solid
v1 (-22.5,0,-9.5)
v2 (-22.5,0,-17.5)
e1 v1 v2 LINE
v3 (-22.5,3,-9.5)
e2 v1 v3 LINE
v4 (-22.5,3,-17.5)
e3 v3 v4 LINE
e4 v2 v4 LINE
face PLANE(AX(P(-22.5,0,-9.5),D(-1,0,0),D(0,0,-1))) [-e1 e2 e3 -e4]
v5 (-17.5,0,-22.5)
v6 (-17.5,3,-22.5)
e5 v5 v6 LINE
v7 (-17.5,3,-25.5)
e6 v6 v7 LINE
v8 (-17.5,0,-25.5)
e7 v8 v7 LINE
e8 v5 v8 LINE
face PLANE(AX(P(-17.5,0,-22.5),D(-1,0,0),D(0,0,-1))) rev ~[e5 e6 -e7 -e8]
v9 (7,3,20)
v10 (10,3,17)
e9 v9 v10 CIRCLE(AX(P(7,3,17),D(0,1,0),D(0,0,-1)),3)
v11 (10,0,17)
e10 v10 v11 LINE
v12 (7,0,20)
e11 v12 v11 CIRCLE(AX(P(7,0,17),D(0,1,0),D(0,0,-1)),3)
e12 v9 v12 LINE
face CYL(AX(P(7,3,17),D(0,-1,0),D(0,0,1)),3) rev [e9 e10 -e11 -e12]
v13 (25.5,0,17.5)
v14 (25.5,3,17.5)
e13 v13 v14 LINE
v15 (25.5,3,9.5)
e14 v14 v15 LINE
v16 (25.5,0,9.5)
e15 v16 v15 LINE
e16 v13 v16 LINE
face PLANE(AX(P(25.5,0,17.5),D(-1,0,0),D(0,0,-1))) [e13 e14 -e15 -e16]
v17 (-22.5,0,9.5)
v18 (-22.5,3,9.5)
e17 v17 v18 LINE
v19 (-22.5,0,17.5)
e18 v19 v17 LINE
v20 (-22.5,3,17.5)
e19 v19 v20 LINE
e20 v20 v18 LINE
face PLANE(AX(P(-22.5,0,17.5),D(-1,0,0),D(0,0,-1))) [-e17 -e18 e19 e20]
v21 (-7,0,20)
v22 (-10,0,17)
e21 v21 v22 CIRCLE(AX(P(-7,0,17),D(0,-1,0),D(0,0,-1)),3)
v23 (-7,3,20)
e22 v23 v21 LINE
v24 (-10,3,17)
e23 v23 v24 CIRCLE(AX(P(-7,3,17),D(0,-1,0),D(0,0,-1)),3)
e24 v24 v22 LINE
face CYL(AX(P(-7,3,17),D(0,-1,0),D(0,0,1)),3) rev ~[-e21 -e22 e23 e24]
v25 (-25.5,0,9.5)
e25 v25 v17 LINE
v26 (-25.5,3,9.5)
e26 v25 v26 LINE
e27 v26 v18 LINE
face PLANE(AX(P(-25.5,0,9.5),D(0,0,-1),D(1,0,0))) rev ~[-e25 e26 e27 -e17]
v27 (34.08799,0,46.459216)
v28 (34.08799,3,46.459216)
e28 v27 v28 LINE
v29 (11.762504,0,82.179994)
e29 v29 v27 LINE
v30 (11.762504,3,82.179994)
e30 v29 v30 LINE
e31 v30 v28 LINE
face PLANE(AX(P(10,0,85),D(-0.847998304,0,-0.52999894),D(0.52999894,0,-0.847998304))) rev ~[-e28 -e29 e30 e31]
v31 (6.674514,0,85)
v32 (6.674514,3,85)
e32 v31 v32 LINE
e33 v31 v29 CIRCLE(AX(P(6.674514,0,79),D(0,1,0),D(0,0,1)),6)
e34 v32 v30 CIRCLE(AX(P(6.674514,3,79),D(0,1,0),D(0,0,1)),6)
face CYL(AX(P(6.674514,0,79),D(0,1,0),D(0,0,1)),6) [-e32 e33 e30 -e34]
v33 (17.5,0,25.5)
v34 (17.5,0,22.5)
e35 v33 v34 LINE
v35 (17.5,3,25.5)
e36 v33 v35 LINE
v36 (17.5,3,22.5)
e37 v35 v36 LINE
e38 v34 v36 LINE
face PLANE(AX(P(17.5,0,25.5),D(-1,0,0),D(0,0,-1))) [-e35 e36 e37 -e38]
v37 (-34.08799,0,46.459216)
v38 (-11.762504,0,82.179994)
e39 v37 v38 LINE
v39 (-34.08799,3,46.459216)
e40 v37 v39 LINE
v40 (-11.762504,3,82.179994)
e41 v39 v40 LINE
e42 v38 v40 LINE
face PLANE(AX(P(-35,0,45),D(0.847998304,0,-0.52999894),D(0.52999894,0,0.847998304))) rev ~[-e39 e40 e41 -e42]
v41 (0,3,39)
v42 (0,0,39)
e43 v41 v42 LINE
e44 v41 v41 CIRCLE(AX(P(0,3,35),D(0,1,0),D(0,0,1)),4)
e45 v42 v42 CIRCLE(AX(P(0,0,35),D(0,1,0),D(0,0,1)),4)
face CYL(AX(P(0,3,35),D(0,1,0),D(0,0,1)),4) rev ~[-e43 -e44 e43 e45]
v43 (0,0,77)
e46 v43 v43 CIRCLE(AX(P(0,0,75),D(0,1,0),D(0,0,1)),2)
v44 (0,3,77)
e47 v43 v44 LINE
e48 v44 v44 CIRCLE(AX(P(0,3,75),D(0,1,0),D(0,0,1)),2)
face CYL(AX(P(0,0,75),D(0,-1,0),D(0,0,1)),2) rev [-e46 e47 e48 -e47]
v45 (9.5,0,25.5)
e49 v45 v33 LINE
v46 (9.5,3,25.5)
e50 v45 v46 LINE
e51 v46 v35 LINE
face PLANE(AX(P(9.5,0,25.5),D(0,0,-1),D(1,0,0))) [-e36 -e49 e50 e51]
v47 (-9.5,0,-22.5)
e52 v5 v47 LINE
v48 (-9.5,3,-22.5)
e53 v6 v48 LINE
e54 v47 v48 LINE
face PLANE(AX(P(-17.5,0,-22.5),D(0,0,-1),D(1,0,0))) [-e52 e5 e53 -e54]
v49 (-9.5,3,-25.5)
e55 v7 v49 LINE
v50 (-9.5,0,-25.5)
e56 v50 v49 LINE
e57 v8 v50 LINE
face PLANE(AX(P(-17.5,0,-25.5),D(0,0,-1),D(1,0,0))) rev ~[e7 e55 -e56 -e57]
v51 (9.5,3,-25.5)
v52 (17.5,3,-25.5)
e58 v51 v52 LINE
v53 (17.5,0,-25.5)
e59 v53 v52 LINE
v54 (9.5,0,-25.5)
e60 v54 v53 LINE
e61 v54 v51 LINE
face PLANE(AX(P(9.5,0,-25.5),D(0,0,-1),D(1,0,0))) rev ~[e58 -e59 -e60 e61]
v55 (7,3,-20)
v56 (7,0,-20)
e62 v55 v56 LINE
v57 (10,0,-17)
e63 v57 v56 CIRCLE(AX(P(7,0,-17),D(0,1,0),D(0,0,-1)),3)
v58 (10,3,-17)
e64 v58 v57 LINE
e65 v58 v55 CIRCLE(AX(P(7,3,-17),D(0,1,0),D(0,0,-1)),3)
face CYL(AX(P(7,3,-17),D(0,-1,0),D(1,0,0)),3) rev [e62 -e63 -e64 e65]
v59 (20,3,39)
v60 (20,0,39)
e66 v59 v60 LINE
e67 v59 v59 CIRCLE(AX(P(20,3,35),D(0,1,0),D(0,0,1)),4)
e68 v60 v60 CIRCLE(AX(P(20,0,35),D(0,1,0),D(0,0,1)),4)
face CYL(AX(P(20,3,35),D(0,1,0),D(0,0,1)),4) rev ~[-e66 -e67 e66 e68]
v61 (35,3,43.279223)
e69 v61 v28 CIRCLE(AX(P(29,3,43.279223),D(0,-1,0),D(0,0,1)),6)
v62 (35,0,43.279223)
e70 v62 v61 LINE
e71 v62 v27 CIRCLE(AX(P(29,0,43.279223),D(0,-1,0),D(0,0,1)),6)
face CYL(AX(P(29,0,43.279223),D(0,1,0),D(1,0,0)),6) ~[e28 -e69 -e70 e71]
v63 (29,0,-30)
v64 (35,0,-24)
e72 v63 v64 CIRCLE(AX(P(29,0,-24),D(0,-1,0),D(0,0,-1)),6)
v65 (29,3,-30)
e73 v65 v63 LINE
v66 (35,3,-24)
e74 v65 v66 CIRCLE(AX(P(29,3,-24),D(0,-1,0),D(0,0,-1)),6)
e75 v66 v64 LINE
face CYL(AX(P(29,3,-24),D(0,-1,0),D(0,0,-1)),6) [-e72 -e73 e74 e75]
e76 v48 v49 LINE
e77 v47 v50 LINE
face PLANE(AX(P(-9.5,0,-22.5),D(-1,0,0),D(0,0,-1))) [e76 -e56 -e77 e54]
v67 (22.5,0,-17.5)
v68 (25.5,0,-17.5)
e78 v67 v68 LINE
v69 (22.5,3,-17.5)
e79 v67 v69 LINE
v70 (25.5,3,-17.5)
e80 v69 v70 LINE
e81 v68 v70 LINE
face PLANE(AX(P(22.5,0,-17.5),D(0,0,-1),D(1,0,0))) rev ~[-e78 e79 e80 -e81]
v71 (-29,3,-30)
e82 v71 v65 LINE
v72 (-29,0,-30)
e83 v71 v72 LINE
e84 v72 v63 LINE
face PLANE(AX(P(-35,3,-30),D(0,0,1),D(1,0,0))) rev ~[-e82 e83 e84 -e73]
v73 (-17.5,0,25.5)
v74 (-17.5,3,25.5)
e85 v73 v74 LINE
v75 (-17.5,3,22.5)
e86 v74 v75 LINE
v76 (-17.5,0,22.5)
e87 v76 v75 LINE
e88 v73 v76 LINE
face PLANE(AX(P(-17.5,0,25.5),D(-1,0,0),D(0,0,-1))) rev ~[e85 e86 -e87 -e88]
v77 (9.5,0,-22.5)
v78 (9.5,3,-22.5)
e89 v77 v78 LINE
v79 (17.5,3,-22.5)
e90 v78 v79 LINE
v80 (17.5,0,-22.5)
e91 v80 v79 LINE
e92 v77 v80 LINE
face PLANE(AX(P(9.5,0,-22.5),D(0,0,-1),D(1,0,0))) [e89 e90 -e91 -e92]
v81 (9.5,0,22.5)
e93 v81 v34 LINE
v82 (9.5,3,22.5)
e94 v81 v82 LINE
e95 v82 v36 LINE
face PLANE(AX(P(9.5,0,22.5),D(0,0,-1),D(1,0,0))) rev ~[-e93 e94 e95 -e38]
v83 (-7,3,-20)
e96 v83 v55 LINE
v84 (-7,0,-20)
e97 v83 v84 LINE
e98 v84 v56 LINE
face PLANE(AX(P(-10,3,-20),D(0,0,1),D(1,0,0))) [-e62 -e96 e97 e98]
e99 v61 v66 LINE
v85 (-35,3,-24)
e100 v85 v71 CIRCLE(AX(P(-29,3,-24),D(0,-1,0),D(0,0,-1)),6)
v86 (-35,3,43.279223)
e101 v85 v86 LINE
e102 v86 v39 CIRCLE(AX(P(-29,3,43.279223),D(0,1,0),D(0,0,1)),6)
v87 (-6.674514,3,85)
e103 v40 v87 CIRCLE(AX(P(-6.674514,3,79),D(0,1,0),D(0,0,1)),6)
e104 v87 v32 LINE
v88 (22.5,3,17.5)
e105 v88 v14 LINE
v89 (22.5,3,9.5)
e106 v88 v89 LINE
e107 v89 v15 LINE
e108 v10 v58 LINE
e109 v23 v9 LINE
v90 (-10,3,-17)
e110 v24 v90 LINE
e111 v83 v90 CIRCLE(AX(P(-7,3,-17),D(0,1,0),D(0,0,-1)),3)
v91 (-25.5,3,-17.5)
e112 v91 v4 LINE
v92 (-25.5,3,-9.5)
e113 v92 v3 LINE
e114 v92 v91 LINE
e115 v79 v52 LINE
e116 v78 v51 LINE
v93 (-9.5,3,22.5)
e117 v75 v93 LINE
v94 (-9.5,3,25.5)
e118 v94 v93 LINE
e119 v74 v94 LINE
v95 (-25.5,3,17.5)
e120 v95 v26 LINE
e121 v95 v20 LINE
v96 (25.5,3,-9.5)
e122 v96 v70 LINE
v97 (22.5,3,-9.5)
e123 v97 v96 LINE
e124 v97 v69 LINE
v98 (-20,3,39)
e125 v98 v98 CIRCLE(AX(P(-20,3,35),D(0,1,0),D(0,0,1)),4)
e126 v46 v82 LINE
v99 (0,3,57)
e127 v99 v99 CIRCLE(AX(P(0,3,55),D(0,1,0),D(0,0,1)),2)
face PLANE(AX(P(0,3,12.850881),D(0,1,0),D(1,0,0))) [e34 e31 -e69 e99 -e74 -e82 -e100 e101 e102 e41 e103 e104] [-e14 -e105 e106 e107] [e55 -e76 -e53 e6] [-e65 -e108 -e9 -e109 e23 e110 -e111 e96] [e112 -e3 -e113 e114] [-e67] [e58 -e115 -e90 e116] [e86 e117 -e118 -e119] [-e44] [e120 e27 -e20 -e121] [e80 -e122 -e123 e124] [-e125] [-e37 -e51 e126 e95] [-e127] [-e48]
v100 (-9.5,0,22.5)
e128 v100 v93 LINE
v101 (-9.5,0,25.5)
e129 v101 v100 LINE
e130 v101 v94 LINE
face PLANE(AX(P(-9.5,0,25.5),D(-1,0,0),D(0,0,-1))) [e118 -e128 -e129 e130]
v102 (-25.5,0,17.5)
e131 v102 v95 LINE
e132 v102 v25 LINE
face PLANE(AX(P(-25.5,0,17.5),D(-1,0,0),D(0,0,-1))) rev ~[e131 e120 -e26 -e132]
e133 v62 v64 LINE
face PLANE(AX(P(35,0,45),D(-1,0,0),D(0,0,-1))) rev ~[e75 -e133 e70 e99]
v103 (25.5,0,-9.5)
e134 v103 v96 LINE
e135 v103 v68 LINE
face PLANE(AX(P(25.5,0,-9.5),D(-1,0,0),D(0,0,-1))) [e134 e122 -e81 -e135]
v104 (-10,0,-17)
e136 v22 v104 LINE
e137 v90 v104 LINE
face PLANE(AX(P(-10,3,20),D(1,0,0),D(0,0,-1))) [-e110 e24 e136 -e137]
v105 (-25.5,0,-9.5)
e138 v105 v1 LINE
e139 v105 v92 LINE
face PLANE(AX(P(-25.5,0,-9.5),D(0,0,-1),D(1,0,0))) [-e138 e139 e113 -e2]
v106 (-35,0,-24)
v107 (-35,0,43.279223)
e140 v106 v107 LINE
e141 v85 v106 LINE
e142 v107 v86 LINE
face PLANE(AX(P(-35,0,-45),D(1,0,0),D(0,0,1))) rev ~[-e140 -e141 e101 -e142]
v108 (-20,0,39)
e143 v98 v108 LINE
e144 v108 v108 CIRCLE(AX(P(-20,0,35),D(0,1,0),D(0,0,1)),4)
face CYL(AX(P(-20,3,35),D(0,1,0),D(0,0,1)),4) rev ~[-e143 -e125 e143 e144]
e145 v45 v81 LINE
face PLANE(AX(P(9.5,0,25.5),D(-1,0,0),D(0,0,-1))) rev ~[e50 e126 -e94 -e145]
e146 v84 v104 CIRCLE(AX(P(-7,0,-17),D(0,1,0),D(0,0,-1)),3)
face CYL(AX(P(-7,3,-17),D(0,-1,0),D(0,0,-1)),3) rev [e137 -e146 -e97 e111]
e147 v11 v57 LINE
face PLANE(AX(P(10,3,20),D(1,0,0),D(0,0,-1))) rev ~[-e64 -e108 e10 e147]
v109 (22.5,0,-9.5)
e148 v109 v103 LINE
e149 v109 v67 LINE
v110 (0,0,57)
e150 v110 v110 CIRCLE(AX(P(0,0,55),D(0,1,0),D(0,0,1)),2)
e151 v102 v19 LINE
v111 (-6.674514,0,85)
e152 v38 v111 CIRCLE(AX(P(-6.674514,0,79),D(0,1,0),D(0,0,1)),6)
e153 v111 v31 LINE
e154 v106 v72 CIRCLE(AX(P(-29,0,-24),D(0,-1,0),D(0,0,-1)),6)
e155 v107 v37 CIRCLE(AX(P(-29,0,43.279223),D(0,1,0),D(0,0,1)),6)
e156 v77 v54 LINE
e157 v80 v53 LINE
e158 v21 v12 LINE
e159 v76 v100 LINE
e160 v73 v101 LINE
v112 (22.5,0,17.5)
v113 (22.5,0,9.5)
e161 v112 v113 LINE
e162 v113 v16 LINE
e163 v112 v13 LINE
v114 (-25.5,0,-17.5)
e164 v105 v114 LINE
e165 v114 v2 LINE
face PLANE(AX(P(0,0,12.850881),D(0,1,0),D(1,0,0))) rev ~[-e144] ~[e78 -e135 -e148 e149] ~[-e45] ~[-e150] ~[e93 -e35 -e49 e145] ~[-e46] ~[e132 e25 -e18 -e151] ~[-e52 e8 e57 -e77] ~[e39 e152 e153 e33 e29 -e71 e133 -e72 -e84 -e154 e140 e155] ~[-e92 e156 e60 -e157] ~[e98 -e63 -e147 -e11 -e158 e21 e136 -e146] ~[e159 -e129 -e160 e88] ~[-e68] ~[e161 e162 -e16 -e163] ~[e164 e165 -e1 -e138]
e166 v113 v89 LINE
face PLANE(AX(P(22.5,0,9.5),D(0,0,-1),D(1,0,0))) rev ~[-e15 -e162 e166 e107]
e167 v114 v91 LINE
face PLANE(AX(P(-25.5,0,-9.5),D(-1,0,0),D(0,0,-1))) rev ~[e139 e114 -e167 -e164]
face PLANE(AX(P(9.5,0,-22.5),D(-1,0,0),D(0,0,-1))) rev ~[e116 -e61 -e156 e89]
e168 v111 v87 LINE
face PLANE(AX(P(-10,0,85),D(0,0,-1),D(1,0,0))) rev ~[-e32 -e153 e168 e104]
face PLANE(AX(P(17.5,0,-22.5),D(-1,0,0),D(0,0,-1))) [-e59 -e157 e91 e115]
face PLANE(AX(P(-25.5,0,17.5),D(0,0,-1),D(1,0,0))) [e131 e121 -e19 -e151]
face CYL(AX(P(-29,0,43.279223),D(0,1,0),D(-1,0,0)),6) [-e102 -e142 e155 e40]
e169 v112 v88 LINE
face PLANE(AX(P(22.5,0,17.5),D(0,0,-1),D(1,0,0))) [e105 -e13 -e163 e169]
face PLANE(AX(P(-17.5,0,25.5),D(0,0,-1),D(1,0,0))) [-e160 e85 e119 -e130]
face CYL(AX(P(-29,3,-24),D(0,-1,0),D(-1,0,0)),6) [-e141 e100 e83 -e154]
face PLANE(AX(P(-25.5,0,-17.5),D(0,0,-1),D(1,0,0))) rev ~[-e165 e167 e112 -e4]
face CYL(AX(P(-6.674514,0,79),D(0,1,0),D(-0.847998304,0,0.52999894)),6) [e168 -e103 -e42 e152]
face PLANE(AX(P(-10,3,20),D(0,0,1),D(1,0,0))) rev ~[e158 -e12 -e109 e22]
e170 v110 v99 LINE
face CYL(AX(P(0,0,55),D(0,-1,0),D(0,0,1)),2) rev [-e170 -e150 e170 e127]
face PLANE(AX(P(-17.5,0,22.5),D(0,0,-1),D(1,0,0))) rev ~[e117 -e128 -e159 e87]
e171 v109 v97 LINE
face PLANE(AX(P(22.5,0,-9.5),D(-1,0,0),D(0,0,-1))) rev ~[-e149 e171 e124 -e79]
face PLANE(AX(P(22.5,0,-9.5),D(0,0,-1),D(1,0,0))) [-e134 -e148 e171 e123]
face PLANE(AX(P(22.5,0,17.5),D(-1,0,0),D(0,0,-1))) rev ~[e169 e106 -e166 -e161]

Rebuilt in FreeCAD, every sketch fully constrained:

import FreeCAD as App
import Part
import Sketcher
Q = App.Units.Quantity


def edges_at(feature, points):
    """Names of the edges that pass closest to the given points."""
    edges = feature.Shape.Edges
    near = lambda p: min(range(len(edges)), key=lambda i: edges[i].distToShape(Part.Vertex(*p))[0])
    return sorted({f"Edge{near(p) + 1}" for p in points})


def add_polygon(sketch, points):
    """Adds a closed chain of lines whose ends are joined by coincident constraints."""
    first, n = sketch.GeometryCount, len(points)
    for a, b in zip(points, points[1:] + points[:1]):
        sketch.addGeometry(Part.LineSegment(App.Vector(*a, 0), App.Vector(*b, 0)), False)
    for i in range(n):
        sketch.addConstraint(Sketcher.Constraint("Coincident", first + i, 2, first + (i + 1) % n, 1))

doc = App.newDocument("Part")
body = doc.addObject("PartDesign::Body", "Body")

sketch1 = doc.addObject("Sketcher::SketchObject", "Sketch")
body.addObject(sketch1)
sketch1.AttachmentSupport = (doc.XZ_Plane, [""])
sketch1.MapMode = "FlatFace"
add_polygon(sketch1, [(-35, 45), (-10, 85), (10, 85), (35, 45), (35, -45), (-35, -45)])
sketch1.addGeometry(Part.Circle(App.Vector(0, 75, 0), App.Vector(0, 0, 1), 2), False)
sketch1.addGeometry(Part.Circle(App.Vector(0, 55, 0), App.Vector(0, 0, 1), 2), False)
add_polygon(sketch1, [(-22.5, 17.5), (-25.5, 17.5), (-25.5, 9.5), (-22.5, 9.5)])
add_polygon(sketch1, [(-9.5, 25.5), (-17.5, 25.5), (-17.5, 22.5), (-9.5, 22.5)])
add_polygon(sketch1, [(-22.5, -9.5), (-25.5, -9.5), (-25.5, -17.5), (-22.5, -17.5)])
add_polygon(sketch1, [(-9.5, -22.5), (-17.5, -22.5), (-17.5, -25.5), (-9.5, -25.5)])
add_polygon(sketch1, [(17.5, 25.5), (9.5, 25.5), (9.5, 22.5), (17.5, 22.5)])
add_polygon(sketch1, [(25.5, 17.5), (22.5, 17.5), (22.5, 9.5), (25.5, 9.5)])
add_polygon(sketch1, [(17.5, -22.5), (9.5, -22.5), (9.5, -25.5), (17.5, -25.5)])
add_polygon(sketch1, [(25.5, -9.5), (22.5, -9.5), (22.5, -17.5), (25.5, -17.5)])
sketch1.addConstraint([
    Sketcher.Constraint("Horizontal", 1),
    Sketcher.Constraint("Vertical", 3),
    Sketcher.Constraint("Horizontal", 4),
    Sketcher.Constraint("Vertical", 5),
    Sketcher.Constraint("Horizontal", 8),
    Sketcher.Constraint("Vertical", 9),
    Sketcher.Constraint("Horizontal", 10),
    Sketcher.Constraint("Vertical", 11),
    Sketcher.Constraint("Horizontal", 12),
    Sketcher.Constraint("Vertical", 13),
    Sketcher.Constraint("Horizontal", 14),
    Sketcher.Constraint("Vertical", 15),
    Sketcher.Constraint("Horizontal", 16),
    Sketcher.Constraint("Vertical", 17),
    Sketcher.Constraint("Horizontal", 18),
    Sketcher.Constraint("Vertical", 19),
    Sketcher.Constraint("Horizontal", 20),
    Sketcher.Constraint("Vertical", 21),
    Sketcher.Constraint("Horizontal", 22),
    Sketcher.Constraint("Vertical", 23),
    Sketcher.Constraint("Horizontal", 24),
    Sketcher.Constraint("Vertical", 25),
    Sketcher.Constraint("Horizontal", 26),
    Sketcher.Constraint("Vertical", 27),
    Sketcher.Constraint("Horizontal", 28),
    Sketcher.Constraint("Vertical", 29),
    Sketcher.Constraint("Horizontal", 30),
    Sketcher.Constraint("Vertical", 31),
    Sketcher.Constraint("Horizontal", 32),
    Sketcher.Constraint("Vertical", 33),
    Sketcher.Constraint("Horizontal", 34),
    Sketcher.Constraint("Vertical", 35),
    Sketcher.Constraint("Horizontal", 36),
    Sketcher.Constraint("Vertical", 37),
    Sketcher.Constraint("Horizontal", 38),
    Sketcher.Constraint("Vertical", 39),
    Sketcher.Constraint("Equal", 6, 7),
    Sketcher.Constraint("Symmetric", 2, 2, 4, 2, -1, 1),
    Sketcher.Constraint("Symmetric", 22, 2, 24, 2, -1, 1),
    Sketcher.Constraint("Symmetric", 20, 2, 26, 2, -1, 1),
    Sketcher.Constraint("Symmetric", 18, 2, 28, 2, -1, 1),
    Sketcher.Constraint("Symmetric", 16, 2, 30, 2, -1, 1),
    Sketcher.Constraint("Symmetric", 14, 2, 32, 2, -1, 1),
    Sketcher.Constraint("Symmetric", 12, 2, 34, 2, -1, 1),
    Sketcher.Constraint("Symmetric", 10, 2, 36, 2, -1, 1),
    Sketcher.Constraint("Symmetric", 8, 2, 38, 2, -1, 1),
    Sketcher.Constraint("Symmetric", 15, 2, 24, 2, -2),
    Sketcher.Constraint("Symmetric", 13, 2, 26, 2, -2),
    Sketcher.Constraint("Symmetric", 11, 2, 28, 2, -2),
    Sketcher.Constraint("Symmetric", 9, 2, 30, 2, -2),
    Sketcher.Constraint("PointOnObject", 6, 3, -2),
    Sketcher.Constraint("PointOnObject", 7, 3, -2),
    Sketcher.Constraint("Horizontal", 2, 2, 5, 2),
    Sketcher.Constraint("Equal", 34, 9),
    Sketcher.Constraint("Equal", 38, 13),
    Sketcher.Constraint("Equal", 0, 2),
    Sketcher.Constraint("Diameter", 6, Q("4 mm")),
    Sketcher.Constraint("DistanceX", 1, 1, 1, 2, Q("20 mm")),
    Sketcher.Constraint("DistanceX", 4, 2, 4, 1, Q("70 mm")),
    Sketcher.Constraint("DistanceX", 8, 2, 8, 1, Q("3 mm")),
    Sketcher.Constraint("DistanceX", 12, 2, 12, 1, Q("8 mm")),
    Sketcher.Constraint("DistanceY", 3, 2, 3, 1, Q("90 mm")),
    Sketcher.Constraint("DistanceY", -1, 1, 6, 3, Q("75 mm")),
    Sketcher.Constraint("DistanceY", -1, 1, 7, 3, Q("55 mm")),
    Sketcher.Constraint("DistanceY", -1, 1, 0, 2, Q("85 mm")),
    Sketcher.Constraint("DistanceX", 11, 2, 12, 2, Q("5 mm")),
    Sketcher.Constraint("DistanceY", 11, 2, 12, 2, Q("8 mm")),
    Sketcher.Constraint("DistanceY", 16, 2, 9, 2, Q("19 mm")),
    Sketcher.Constraint("DistanceX", 15, 2, 24, 2, Q("19 mm")),
])
pad1 = doc.addObject("PartDesign::Pad", "Pad")
body.addObject(pad1)
pad1.Profile = sketch1
pad1.Length = 3
pad1.Reversed = True

sketch2 = doc.addObject("Sketcher::SketchObject", "Sketch001")
body.addObject(sketch2)
sketch2.AttachmentSupport = (doc.XZ_Plane, [""])
sketch2.MapMode = "FlatFace"
sketch2.AttachmentOffset = App.Placement(App.Vector(0, 0, -3), App.Rotation())
sketch2.addGeometry([
    Part.Circle(App.Vector(0, 35, 0), App.Vector(0, 0, 1), 4),
    Part.Circle(App.Vector(-20, 35, 0), App.Vector(0, 0, 1), 4),
    Part.Circle(App.Vector(20, 35, 0), App.Vector(0, 0, 1), 4),
], False)
sketch2.addConstraint([
    Sketcher.Constraint("Equal", 0, 1),
    Sketcher.Constraint("Equal", 1, 2),
    Sketcher.Constraint("Symmetric", 1, 3, 2, 3, -2),
    Sketcher.Constraint("PointOnObject", 0, 3, -2),
    Sketcher.Constraint("Horizontal", 0, 3, 1, 3),
    Sketcher.Constraint("Diameter", 0, Q("8 mm")),
    Sketcher.Constraint("DistanceY", -1, 1, 0, 3, Q("35 mm")),
    Sketcher.Constraint("DistanceX", 1, 3, -1, 1, Q("20 mm")),
])
pocket1 = doc.addObject("PartDesign::Pocket", "Pocket")
body.addObject(pocket1)
pocket1.Profile = sketch2
pocket1.Length = 10
pocket1.Reversed = True

sketch3 = doc.addObject("Sketcher::SketchObject", "Sketch002")
body.addObject(sketch3)
sketch3.AttachmentSupport = (doc.XZ_Plane, [""])
sketch3.MapMode = "FlatFace"
sketch3.AttachmentOffset = App.Placement(App.Vector(0, 0, -3), App.Rotation())
add_polygon(sketch3, [(-35, -45), (-35, -30), (35, -30), (35, -45)])
sketch3.addConstraint([
    Sketcher.Constraint("Vertical", 0),
    Sketcher.Constraint("Horizontal", 1),
    Sketcher.Constraint("Vertical", 2),
    Sketcher.Constraint("Horizontal", 3),
    Sketcher.Constraint("DistanceX", 1, 1, 1, 2, Q("70 mm")),
    Sketcher.Constraint("DistanceY", 0, 1, 0, 2, Q("15 mm")),
    Sketcher.Constraint("DistanceX", 0, 2, -1, 1, Q("35 mm")),
    Sketcher.Constraint("DistanceY", 0, 2, -1, 1, Q("30 mm")),
])
pocket2 = doc.addObject("PartDesign::Pocket", "Pocket001")
body.addObject(pocket2)
pocket2.Profile = sketch3
pocket2.Length = 10
pocket2.Reversed = True

sketch4 = doc.addObject("Sketcher::SketchObject", "Sketch003")
body.addObject(sketch4)
sketch4.AttachmentSupport = (doc.XZ_Plane, [""])
sketch4.MapMode = "FlatFace"
sketch4.AttachmentOffset = App.Placement(App.Vector(0, 0, -3), App.Rotation())
add_polygon(sketch4, [(-10, -20), (-10, 20), (10, 20), (10, -20)])
sketch4.addConstraint([
    Sketcher.Constraint("Vertical", 0),
    Sketcher.Constraint("Horizontal", 1),
    Sketcher.Constraint("Vertical", 2),
    Sketcher.Constraint("Horizontal", 3),
    Sketcher.Constraint("Symmetric", 0, 2, 2, 2, -1, 1),
    Sketcher.Constraint("DistanceX", 1, 1, 1, 2, Q("20 mm")),
    Sketcher.Constraint("DistanceY", 0, 1, 0, 2, Q("40 mm")),
])
pocket3 = doc.addObject("PartDesign::Pocket", "Pocket002")
body.addObject(pocket3)
pocket3.Profile = sketch4
pocket3.Length = 10
pocket3.Reversed = True
doc.recompute()

fillet = doc.addObject("PartDesign::Fillet", "Fillet")
body.addObject(fillet)
fillet.Base = (pocket3, edges_at(pocket3, [
    (10, 1.5, -20),
    (10, 1.5, 20),
    (-10, 1.5, 20),
    (-10, 1.5, -20),
]))
fillet.Radius = 3
doc.recompute()

fillet2 = doc.addObject("PartDesign::Fillet", "Fillet001")
body.addObject(fillet2)
fillet2.Base = (fillet, edges_at(fillet, [
    (-35, 1.5, -30),
    (35, 1.5, -30),
    (-10, 1.5, 85),
    (-35, 1.5, 45),
    (35, 1.5, 45),
    (10, 1.5, 85),
]))
fillet2.Radius = 6

doc.recompute()
